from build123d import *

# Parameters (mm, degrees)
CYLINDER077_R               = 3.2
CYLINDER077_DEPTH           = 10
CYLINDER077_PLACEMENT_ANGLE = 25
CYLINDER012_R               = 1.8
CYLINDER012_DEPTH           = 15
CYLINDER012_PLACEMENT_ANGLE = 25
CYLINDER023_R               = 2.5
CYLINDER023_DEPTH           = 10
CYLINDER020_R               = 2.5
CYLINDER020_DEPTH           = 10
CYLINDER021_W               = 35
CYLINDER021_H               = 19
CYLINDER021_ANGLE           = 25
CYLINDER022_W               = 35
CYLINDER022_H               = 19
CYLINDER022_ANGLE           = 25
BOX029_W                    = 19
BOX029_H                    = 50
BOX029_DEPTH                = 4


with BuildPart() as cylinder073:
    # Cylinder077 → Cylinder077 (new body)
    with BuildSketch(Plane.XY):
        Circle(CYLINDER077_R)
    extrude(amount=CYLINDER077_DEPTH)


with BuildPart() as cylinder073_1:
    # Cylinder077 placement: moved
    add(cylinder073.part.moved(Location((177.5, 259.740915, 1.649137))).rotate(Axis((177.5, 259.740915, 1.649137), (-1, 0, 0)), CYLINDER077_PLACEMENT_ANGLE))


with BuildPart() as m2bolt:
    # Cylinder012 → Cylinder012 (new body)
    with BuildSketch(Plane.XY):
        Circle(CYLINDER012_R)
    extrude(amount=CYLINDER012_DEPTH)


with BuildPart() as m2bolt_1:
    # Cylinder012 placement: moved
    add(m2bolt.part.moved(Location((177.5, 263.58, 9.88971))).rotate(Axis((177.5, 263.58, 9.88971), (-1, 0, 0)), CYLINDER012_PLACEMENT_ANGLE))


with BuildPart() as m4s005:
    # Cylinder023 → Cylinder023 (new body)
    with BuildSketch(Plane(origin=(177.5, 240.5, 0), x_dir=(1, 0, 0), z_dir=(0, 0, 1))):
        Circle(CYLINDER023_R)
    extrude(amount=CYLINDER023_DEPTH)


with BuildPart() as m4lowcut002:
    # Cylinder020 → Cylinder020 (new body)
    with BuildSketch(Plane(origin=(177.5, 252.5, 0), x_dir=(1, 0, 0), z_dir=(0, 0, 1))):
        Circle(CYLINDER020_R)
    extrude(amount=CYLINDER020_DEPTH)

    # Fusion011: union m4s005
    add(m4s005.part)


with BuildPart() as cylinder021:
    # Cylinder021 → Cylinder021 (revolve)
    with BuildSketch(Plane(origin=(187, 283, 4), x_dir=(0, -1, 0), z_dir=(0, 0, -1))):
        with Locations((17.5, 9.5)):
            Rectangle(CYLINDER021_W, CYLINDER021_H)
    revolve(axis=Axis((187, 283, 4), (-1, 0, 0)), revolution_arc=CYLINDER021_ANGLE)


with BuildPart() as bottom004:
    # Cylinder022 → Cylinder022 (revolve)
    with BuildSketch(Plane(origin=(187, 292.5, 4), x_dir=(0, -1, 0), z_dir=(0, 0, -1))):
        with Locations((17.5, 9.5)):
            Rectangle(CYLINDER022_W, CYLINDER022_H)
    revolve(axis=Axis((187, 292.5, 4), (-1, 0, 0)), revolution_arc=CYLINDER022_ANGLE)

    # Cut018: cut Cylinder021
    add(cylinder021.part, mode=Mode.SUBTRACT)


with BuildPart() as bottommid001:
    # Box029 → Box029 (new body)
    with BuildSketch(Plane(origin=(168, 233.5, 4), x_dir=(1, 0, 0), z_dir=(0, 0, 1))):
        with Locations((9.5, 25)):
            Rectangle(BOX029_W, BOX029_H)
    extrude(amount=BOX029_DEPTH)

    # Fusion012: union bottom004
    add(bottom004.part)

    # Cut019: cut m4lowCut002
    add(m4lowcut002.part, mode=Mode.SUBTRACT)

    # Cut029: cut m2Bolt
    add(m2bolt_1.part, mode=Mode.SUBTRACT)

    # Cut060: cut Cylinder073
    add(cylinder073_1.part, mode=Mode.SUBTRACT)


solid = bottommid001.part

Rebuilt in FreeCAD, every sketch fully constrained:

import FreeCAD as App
import Part
import Sketcher
from FreeCAD import Vector


def add_polygon(sketch, points):
    """Adds a closed chain of lines whose ends are joined by coincident constraints."""
    first, n = sketch.GeometryCount, len(points)
    for a, b in zip(points, points[1:] + points[:1]):
        sketch.addGeometry(Part.LineSegment(App.Vector(*a, 0), App.Vector(*b, 0)), False)
    for i in range(n):
        sketch.addConstraint(Sketcher.Constraint("Coincident", first + i, 2, first + (i + 1) % n, 1))

doc = App.newDocument("Part")
params = doc.addObject("Spreadsheet::Sheet", "Params")
for row, (alias, value) in enumerate([
    ("sketch1_diameter", "6.4 mm"),
    ("pad1_length", "10 mm"),
    ("sketch2_diameter", "3.6 mm"),
    ("pad2_length", "15 mm"),
    ("sketch3_diameter", "5 mm"),
    ("pad3_length", "10 mm"),
    ("sketch4_diameter", "5 mm"),
    ("pad4_length", "10 mm"),
    ("sketch5_width", "19 mm"),
    ("sketch5_height", "35 mm"),
    ("revolution_angle", "25 deg"),
    ("sketch6_width", "19 mm"),
    ("sketch6_height", "35 mm"),
    ("revolution2_angle", "25 deg"),
    ("sketch7_width", "19 mm"),
    ("sketch7_height", "50 mm"),
    ("pad5_length", "4 mm"),
], start=1):
    params.set(f"A{row}", alias)
    params.set(f"B{row}", "=" + value)
    params.setAlias(f"B{row}", alias)

body = doc.addObject("PartDesign::Body", "Body")

# Sketch on XY plane
sketch1 = body.newObject("Sketcher::SketchObject", "Sketch")
sketch1.AttachmentSupport = (doc.getObject("XY_Plane"), [""])
sketch1.MapMode = "FlatFace"
sketch1.addGeometry(Part.Circle(Vector(0, 0, 0), Vector(0, 0, 1), 3.2), False)
sketch1.addConstraint(Sketcher.Constraint("Coincident", 0, 3, -1, 1))
sketch1.addConstraint(Sketcher.Constraint("Diameter", 0, 6.4))
sketch1.setExpression("Constraints[1]", "Params.sketch1_diameter")
pad1 = body.newObject("PartDesign::Pad", "Pad")
pad1.Profile = sketch1
pad1.setExpression("Length", "Params.pad1_length")
body2 = doc.addObject("PartDesign::Body", "Body001")
doc.recompute()

body.Placement = App.Placement(Vector(177.5, 259.740915, 1.649137), App.Rotation(Vector(-1, 0, 0), 25))
boolean = body2.newObject("PartDesign::Boolean", "Boolean")
boolean.Type = "Fuse"
boolean.addObjects([body])
body3 = doc.addObject("PartDesign::Body", "Body002")

# Sketch on XY plane
sketch2 = body3.newObject("Sketcher::SketchObject", "Sketch001")
sketch2.AttachmentSupport = (doc.getObject("XY_Plane002"), [""])
sketch2.MapMode = "FlatFace"
sketch2.addGeometry(Part.Circle(Vector(0, 0, 0), Vector(0, 0, 1), 1.8), False)
sketch2.addConstraint(Sketcher.Constraint("Coincident", 0, 3, -1, 1))
sketch2.addConstraint(Sketcher.Constraint("Diameter", 0, 3.6))
sketch2.setExpression("Constraints[1]", "Params.sketch2_diameter")
pad2 = body3.newObject("PartDesign::Pad", "Pad001")
pad2.Profile = sketch2
pad2.setExpression("Length", "Params.pad2_length")
body4 = doc.addObject("PartDesign::Body", "Body003")
doc.recompute()

body3.Placement = App.Placement(Vector(177.5, 263.58, 9.88971), App.Rotation(Vector(-1, 0, 0), 25))
boolean2 = body4.newObject("PartDesign::Boolean", "Boolean001")
boolean2.Type = "Fuse"
boolean2.addObjects([body3])
body5 = doc.addObject("PartDesign::Body", "Body004")

# Sketch on XY plane
sketch3 = body5.newObject("Sketcher::SketchObject", "Sketch002")
sketch3.AttachmentSupport = (doc.getObject("XY_Plane004"), [""])
sketch3.MapMode = "FlatFace"
sketch3.addGeometry(Part.Circle(Vector(177.5, 240.5, 0), Vector(0, 0, 1), 2.5), False)
sketch3.addConstraint(Sketcher.Constraint("Diameter", 0, 5.0))
sketch3.addConstraint(Sketcher.Constraint("DistanceX", -1, 1, 0, 3, 177.5))
sketch3.addConstraint(Sketcher.Constraint("DistanceY", -1, 1, 0, 3, 240.5))
sketch3.setExpression("Constraints[0]", "Params.sketch3_diameter")
pad3 = body5.newObject("PartDesign::Pad", "Pad002")
pad3.Profile = sketch3
pad3.setExpression("Length", "Params.pad3_length")
body6 = doc.addObject("PartDesign::Body", "Body005")
body6.AllowCompound = True

# Sketch on XY plane
sketch4 = body6.newObject("Sketcher::SketchObject", "Sketch003")
sketch4.AttachmentSupport = (doc.getObject("XY_Plane005"), [""])
sketch4.MapMode = "FlatFace"
sketch4.addGeometry(Part.Circle(Vector(177.5, 252.5, 0), Vector(0, 0, 1), 2.5), False)
sketch4.addConstraint(Sketcher.Constraint("Diameter", 0, 5.0))
sketch4.addConstraint(Sketcher.Constraint("DistanceX", -1, 1, 0, 3, 177.5))
sketch4.addConstraint(Sketcher.Constraint("DistanceY", -1, 1, 0, 3, 252.5))
sketch4.setExpression("Constraints[0]", "Params.sketch4_diameter")
pad4 = body6.newObject("PartDesign::Pad", "Pad003")
pad4.Profile = sketch4
pad4.setExpression("Length", "Params.pad4_length")
doc.recompute()

boolean3 = body6.newObject("PartDesign::Boolean", "Boolean002")
boolean3.Type = "Fuse"
boolean3.addObjects([body5])
body7 = doc.addObject("PartDesign::Body", "Body006")

# Sketch on XY plane
sketch5 = body7.newObject("Sketcher::SketchObject", "Sketch004")
sketch5.AttachmentSupport = (doc.getObject("XY_Plane006"), [""])
sketch5.MapMode = "FlatFace"
sketch5.AttachmentOffset = App.Placement(Vector(0, 0, 4), App.Rotation())
add_polygon(sketch5, [(168, 283), (187, 283), (187, 248), (168, 248)])  # lines 0-3
sketch5.addGeometry(Part.LineSegment(Vector(187, 283, 0), Vector(168, 283, 0)), True)  # axis
sketch5.addConstraint(Sketcher.Constraint("Horizontal", 0))
sketch5.addConstraint(Sketcher.Constraint("Vertical", 1))
sketch5.addConstraint(Sketcher.Constraint("Horizontal", 2))
sketch5.addConstraint(Sketcher.Constraint("Vertical", 3))
sketch5.addConstraint(Sketcher.Constraint("Horizontal", 4))
sketch5.addConstraint(Sketcher.Constraint("Coincident", 4, 1, 0, 2))
sketch5.addConstraint(Sketcher.Constraint("Vertical", 2, 2, 4, 2))
sketch5.addConstraint(Sketcher.Constraint("DistanceX", 0, 1, 0, 2, 19.0))
sketch5.addConstraint(Sketcher.Constraint("DistanceY", 1, 2, 1, 1, 35.0))
sketch5.addConstraint(Sketcher.Constraint("DistanceX", -1, 1, 0, 2, 187.0))
sketch5.addConstraint(Sketcher.Constraint("DistanceY", -1, 1, 0, 2, 283.0))
sketch5.setExpression("Constraints[11]", "Params.sketch5_width")
sketch5.setExpression("Constraints[12]", "Params.sketch5_height")
revolution = body7.newObject("PartDesign::Revolution", "Revolution")
revolution.Profile = sketch5
revolution.ReferenceAxis = (sketch5, ["Axis0"])
revolution.setExpression("Angle", "Params.revolution_angle")
body8 = doc.addObject("PartDesign::Body", "Body007")

# Sketch on XY plane
sketch6 = body8.newObject("Sketcher::SketchObject", "Sketch005")
sketch6.AttachmentSupport = (doc.getObject("XY_Plane007"), [""])
sketch6.MapMode = "FlatFace"
sketch6.AttachmentOffset = App.Placement(Vector(0, 0, 4), App.Rotation())
add_polygon(sketch6, [(168, 292), (187, 292), (187, 258), (168, 258)])  # lines 0-3
sketch6.addGeometry(Part.LineSegment(Vector(187, 292, 0), Vector(168, 292, 0)), True)  # axis
sketch6.addConstraint(Sketcher.Constraint("Horizontal", 0))
sketch6.addConstraint(Sketcher.Constraint("Vertical", 1))
sketch6.addConstraint(Sketcher.Constraint("Horizontal", 2))
sketch6.addConstraint(Sketcher.Constraint("Vertical", 3))
sketch6.addConstraint(Sketcher.Constraint("Horizontal", 4))
sketch6.addConstraint(Sketcher.Constraint("Coincident", 4, 1, 0, 2))
sketch6.addConstraint(Sketcher.Constraint("Vertical", 2, 2, 4, 2))
sketch6.addConstraint(Sketcher.Constraint("DistanceX", 0, 1, 0, 2, 19.0))
sketch6.addConstraint(Sketcher.Constraint("DistanceY", 1, 2, 1, 1, 35.0))
sketch6.addConstraint(Sketcher.Constraint("DistanceX", -1, 1, 0, 2, 187.0))
sketch6.addConstraint(Sketcher.Constraint("DistanceY", -1, 1, 0, 2, 292.5))
sketch6.setExpression("Constraints[11]", "Params.sketch6_width")
sketch6.setExpression("Constraints[12]", "Params.sketch6_height")
revolution2 = body8.newObject("PartDesign::Revolution", "Revolution001")
revolution2.Profile = sketch6
revolution2.ReferenceAxis = (sketch6, ["Axis0"])
revolution2.setExpression("Angle", "Params.revolution2_angle")
doc.recompute()

boolean4 = body8.newObject("PartDesign::Boolean", "Boolean003")
boolean4.Type = "Cut"
boolean4.addObjects([body7])
body9 = doc.addObject("PartDesign::Body", "Body008")

# Sketch on XY plane
sketch7 = body9.newObject("Sketcher::SketchObject", "Sketch006")
sketch7.AttachmentSupport = (doc.getObject("XY_Plane008"), [""])
sketch7.MapMode = "FlatFace"
sketch7.AttachmentOffset = App.Placement(Vector(0, 0, 4), App.Rotation())
add_polygon(sketch7, [(168, 284), (168, 234), (187, 234), (187, 284)])  # lines 0-3
sketch7.addConstraint(Sketcher.Constraint("Vertical", 0))
sketch7.addConstraint(Sketcher.Constraint("Horizontal", 1))
sketch7.addConstraint(Sketcher.Constraint("Vertical", 2))
sketch7.addConstraint(Sketcher.Constraint("Horizontal", 3))
sketch7.addConstraint(Sketcher.Constraint("DistanceX", 1, 1, 1, 2, 19.0))
sketch7.addConstraint(Sketcher.Constraint("DistanceY", 0, 2, 0, 1, 50.0))
sketch7.addConstraint(Sketcher.Constraint("DistanceX", -1, 1, 0, 2, 168.0))
sketch7.addConstraint(Sketcher.Constraint("DistanceY", -1, 1, 0, 2, 233.5))
sketch7.setExpression("Constraints[8]", "Params.sketch7_width")
sketch7.setExpression("Constraints[9]", "Params.sketch7_height")
pad5 = body9.newObject("PartDesign::Pad", "Pad004")
pad5.Profile = sketch7
pad5.setExpression("Length", "Params.pad5_length")
doc.recompute()

boolean5 = body9.newObject("PartDesign::Boolean", "Boolean004")
boolean5.Type = "Fuse"
boolean5.addObjects([body8])
doc.recompute()

boolean6 = body9.newObject("PartDesign::Boolean", "Boolean005")
boolean6.Type = "Cut"
boolean6.addObjects([body6])
doc.recompute()

boolean7 = body9.newObject("PartDesign::Boolean", "Boolean006")
boolean7.Type = "Cut"
boolean7.addObjects([body4])
doc.recompute()

boolean8 = body9.newObject("PartDesign::Boolean", "Boolean007")
boolean8.Type = "Cut"
boolean8.addObjects([body2])

doc.recompute()
